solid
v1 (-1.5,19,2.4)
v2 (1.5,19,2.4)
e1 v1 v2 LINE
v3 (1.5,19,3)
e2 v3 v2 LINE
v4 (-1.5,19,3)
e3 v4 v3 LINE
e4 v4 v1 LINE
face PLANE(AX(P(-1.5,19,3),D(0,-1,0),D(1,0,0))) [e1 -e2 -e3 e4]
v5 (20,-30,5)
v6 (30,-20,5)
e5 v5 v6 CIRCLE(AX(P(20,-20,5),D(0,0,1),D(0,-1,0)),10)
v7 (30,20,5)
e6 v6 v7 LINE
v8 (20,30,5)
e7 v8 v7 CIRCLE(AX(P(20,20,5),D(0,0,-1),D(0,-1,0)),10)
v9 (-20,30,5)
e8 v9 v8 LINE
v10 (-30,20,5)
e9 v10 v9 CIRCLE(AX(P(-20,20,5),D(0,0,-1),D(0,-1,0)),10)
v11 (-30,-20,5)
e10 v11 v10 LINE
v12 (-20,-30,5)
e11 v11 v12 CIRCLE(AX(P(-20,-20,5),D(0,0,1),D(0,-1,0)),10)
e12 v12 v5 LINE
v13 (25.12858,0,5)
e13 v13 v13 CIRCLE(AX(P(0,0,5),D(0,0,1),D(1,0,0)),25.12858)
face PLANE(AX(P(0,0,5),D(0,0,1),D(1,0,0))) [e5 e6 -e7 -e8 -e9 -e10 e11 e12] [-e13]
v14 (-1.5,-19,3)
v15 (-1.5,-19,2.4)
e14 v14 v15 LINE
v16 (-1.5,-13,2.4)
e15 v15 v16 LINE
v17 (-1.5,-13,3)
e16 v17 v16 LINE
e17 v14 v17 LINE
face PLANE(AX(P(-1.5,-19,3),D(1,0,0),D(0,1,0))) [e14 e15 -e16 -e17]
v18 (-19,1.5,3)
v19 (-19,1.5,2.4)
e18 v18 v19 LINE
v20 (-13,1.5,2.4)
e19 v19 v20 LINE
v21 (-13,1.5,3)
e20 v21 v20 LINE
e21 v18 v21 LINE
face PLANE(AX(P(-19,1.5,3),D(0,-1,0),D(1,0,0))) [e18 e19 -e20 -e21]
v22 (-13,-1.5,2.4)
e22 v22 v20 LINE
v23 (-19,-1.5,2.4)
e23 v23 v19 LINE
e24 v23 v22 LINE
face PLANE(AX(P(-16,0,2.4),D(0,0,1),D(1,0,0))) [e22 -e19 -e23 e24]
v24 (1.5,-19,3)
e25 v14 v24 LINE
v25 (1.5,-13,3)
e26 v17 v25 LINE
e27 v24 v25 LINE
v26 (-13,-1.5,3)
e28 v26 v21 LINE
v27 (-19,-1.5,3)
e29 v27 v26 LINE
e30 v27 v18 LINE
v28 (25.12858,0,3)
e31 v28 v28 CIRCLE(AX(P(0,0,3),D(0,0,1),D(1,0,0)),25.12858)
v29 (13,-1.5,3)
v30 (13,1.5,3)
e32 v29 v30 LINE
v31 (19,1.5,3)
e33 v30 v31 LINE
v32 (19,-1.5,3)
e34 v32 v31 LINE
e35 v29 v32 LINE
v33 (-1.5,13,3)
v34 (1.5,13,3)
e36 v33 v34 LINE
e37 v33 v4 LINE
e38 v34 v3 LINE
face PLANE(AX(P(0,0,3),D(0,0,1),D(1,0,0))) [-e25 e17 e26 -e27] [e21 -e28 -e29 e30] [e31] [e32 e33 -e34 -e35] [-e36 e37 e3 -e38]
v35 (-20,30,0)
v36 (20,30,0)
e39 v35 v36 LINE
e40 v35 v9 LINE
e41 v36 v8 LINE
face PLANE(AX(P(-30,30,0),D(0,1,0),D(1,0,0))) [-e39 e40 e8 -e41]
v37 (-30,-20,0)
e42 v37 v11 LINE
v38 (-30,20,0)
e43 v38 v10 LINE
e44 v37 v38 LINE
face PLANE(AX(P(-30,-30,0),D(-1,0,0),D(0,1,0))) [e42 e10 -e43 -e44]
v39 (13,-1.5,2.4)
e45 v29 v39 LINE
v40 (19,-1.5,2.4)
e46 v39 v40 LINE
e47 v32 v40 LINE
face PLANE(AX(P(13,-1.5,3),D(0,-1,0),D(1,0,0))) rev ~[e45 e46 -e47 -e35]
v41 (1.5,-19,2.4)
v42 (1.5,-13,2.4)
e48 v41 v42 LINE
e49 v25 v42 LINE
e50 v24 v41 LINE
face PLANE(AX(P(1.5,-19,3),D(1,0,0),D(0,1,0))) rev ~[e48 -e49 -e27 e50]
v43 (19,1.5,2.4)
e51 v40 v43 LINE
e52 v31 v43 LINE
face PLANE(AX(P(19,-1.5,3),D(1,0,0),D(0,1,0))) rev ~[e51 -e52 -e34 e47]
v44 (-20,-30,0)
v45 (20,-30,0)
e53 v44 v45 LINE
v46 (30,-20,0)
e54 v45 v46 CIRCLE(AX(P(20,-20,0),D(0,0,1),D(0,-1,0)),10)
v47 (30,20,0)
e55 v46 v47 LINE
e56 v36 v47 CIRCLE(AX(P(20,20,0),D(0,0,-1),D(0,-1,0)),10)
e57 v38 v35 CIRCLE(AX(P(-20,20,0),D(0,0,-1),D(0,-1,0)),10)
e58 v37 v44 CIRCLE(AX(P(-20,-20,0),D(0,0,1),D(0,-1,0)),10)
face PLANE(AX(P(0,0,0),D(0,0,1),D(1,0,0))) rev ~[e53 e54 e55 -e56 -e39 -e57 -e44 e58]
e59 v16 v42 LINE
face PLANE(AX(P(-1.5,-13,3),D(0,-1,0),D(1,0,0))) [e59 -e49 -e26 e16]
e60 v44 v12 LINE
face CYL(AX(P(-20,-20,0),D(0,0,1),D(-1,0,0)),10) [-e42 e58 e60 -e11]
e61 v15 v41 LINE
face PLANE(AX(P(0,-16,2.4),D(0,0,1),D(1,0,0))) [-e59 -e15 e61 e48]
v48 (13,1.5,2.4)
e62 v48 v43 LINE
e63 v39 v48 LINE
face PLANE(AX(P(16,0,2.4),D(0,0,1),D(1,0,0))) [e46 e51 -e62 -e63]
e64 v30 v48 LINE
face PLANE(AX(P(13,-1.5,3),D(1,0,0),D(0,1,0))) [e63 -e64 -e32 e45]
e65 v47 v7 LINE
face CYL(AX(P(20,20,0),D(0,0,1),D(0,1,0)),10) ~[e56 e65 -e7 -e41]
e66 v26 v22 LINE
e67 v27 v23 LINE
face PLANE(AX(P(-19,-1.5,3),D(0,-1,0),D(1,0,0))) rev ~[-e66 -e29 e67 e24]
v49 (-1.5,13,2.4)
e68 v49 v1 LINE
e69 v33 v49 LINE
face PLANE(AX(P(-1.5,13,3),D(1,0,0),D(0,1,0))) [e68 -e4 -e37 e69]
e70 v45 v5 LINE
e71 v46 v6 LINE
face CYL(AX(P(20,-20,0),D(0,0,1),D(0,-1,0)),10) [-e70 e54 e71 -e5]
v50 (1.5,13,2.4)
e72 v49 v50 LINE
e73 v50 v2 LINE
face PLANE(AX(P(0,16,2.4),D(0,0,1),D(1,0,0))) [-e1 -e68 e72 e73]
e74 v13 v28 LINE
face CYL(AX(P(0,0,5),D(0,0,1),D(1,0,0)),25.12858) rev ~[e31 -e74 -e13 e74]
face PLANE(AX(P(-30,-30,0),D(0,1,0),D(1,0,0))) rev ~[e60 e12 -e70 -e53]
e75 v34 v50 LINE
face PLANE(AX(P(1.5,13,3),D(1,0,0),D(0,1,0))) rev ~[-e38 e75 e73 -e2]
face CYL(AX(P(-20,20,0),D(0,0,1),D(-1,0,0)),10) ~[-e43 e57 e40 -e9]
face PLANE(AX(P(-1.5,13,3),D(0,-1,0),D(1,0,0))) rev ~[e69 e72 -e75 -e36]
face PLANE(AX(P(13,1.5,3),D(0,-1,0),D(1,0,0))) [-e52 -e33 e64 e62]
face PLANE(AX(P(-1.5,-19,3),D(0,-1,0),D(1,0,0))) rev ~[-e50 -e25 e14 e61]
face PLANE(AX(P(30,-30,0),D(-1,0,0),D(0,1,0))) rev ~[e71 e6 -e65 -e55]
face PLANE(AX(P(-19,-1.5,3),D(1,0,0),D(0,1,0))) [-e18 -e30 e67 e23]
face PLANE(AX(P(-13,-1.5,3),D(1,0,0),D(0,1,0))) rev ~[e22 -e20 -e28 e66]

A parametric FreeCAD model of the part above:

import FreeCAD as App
import Part
import Sketcher
from FreeCAD import Vector


def edges_at(feature, points):
    """Names of the edges that pass closest to the given points."""
    edges = feature.Shape.Edges
    near = lambda p: min(range(len(edges)), key=lambda i: edges[i].distToShape(Part.Vertex(*p))[0])
    return sorted({f"Edge{near(p) + 1}" for p in points})


def add_polygon(sketch, points):
    """Adds a closed chain of lines whose ends are joined by coincident constraints."""
    first, n = sketch.GeometryCount, len(points)
    for a, b in zip(points, points[1:] + points[:1]):
        sketch.addGeometry(Part.LineSegment(App.Vector(*a, 0), App.Vector(*b, 0)), False)
    for i in range(n):
        sketch.addConstraint(Sketcher.Constraint("Coincident", first + i, 2, first + (i + 1) % n, 1))

doc = App.newDocument("Part")
body = doc.addObject("PartDesign::Body", "Body")

# Sketch on XY plane
sketch1 = body.newObject("Sketcher::SketchObject", "Sketch")
sketch1.AttachmentSupport = (doc.getObject("XY_Plane"), [""])
sketch1.MapMode = "FlatFace"
add_polygon(sketch1, [(-30, 30), (-30, -30), (30, -30), (30, 30)])  # lines 0-3
sketch1.addConstraint([
    Sketcher.Constraint("Vertical", 0),
    Sketcher.Constraint("Horizontal", 1),
    Sketcher.Constraint("Vertical", 2),
    Sketcher.Constraint("Horizontal", 3),
    Sketcher.Constraint("Symmetric", 0, 2, 2, 2, -1, 1),
    Sketcher.Constraint("Equal", 3, 0),
    Sketcher.Constraint("DistanceX", 1, 1, 1, 2, 60.0),
])
pad1 = body.newObject("PartDesign::Pad", "Pad")
pad1.Profile = sketch1
pad1.Length = 5

# Sketch on XY plane
sketch2 = body.newObject("Sketcher::SketchObject", "Sketch001")
sketch2.AttachmentSupport = (doc.getObject("XY_Plane"), [""])
sketch2.MapMode = "FlatFace"
sketch2.AttachmentOffset = App.Placement(Vector(0, 0, 5), App.Rotation())
sketch2.addGeometry(Part.Circle(Vector(0, 0, 0), Vector(0, 0, 1), 25), False)
sketch2.addConstraint([
    Sketcher.Constraint("Coincident", 0, 3, -1, 1),
    Sketcher.Constraint("Diameter", 0, 50.25716),
])
pocket1 = body.newObject("PartDesign::Pocket", "Pocket")
pocket1.Profile = sketch2
pocket1.Length = 2
doc.recompute()

fillet = body.newObject("PartDesign::Fillet", "Fillet")
fillet.Base = (pocket1, edges_at(pocket1, [
    (30, 30, 2.5),
    (30, -30, 2.5),
    (-30, -30, 2.5),
    (-30, 30, 2.5),
]))
fillet.Radius = 10

# Sketch on XY plane
sketch3 = body.newObject("Sketcher::SketchObject", "Sketch002")
sketch3.AttachmentSupport = (doc.getObject("XY_Plane"), [""])
sketch3.MapMode = "FlatFace"
sketch3.AttachmentOffset = App.Placement(Vector(0, 0, 3), App.Rotation())
add_polygon(sketch3, [(13, 1.5), (13, -1.5), (19, -1.5), (19, 1.5)])  # lines 0-3
add_polygon(sketch3, [(-1.5, 19), (-1.5, 13), (1.5, 13), (1.5, 19)])  # lines 4-7
add_polygon(sketch3, [(-19, 1.5), (-19, -1.5), (-13, -1.5), (-13, 1.5)])  # lines 8-11
add_polygon(sketch3, [(-1.5, -13), (-1.5, -19), (1.5, -19), (1.5, -13)])  # lines 12-15
sketch3.addConstraint([
    Sketcher.Constraint("Vertical", 0),
    Sketcher.Constraint("Horizontal", 1),
    Sketcher.Constraint("Vertical", 2),
    Sketcher.Constraint("Horizontal", 3),
    Sketcher.Constraint("Vertical", 4),
    Sketcher.Constraint("Horizontal", 5),
    Sketcher.Constraint("Vertical", 6),
    Sketcher.Constraint("Horizontal", 7),
    Sketcher.Constraint("Vertical", 8),
    Sketcher.Constraint("Horizontal", 9),
    Sketcher.Constraint("Vertical", 10),
    Sketcher.Constraint("Horizontal", 11),
    Sketcher.Constraint("Vertical", 12),
    Sketcher.Constraint("Horizontal", 13),
    Sketcher.Constraint("Vertical", 14),
    Sketcher.Constraint("Horizontal", 15),
    Sketcher.Constraint("Symmetric", 2, 2, 8, 2, -1, 1),
    Sketcher.Constraint("Symmetric", 0, 2, 10, 2, -1, 1),
    Sketcher.Constraint("Symmetric", 6, 2, 12, 2, -1, 1),
    Sketcher.Constraint("Symmetric", 4, 2, 14, 2, -1, 1),
    Sketcher.Constraint("Horizontal", 1, 2, 8, 2),
    Sketcher.Constraint("Vertical", 7, 2, 12, 2),
    Sketcher.Constraint("Equal", 15, 0),
    Sketcher.Constraint("Equal", 11, 4),
    Sketcher.Constraint("DistanceX", 1, 1, 1, 2, 6.0),
    Sketcher.Constraint("DistanceX", 5, 1, 5, 2, 3.0),
    Sketcher.Constraint("DistanceX", -1, 1, 0, 2, 13.0),
    Sketcher.Constraint("DistanceY", -1, 1, 4, 2, 13.0),
])
pocket2 = body.newObject("PartDesign::Pocket", "Pocket001")
pocket2.Profile = sketch3
pocket2.Length = 0.6

doc.recompute()
